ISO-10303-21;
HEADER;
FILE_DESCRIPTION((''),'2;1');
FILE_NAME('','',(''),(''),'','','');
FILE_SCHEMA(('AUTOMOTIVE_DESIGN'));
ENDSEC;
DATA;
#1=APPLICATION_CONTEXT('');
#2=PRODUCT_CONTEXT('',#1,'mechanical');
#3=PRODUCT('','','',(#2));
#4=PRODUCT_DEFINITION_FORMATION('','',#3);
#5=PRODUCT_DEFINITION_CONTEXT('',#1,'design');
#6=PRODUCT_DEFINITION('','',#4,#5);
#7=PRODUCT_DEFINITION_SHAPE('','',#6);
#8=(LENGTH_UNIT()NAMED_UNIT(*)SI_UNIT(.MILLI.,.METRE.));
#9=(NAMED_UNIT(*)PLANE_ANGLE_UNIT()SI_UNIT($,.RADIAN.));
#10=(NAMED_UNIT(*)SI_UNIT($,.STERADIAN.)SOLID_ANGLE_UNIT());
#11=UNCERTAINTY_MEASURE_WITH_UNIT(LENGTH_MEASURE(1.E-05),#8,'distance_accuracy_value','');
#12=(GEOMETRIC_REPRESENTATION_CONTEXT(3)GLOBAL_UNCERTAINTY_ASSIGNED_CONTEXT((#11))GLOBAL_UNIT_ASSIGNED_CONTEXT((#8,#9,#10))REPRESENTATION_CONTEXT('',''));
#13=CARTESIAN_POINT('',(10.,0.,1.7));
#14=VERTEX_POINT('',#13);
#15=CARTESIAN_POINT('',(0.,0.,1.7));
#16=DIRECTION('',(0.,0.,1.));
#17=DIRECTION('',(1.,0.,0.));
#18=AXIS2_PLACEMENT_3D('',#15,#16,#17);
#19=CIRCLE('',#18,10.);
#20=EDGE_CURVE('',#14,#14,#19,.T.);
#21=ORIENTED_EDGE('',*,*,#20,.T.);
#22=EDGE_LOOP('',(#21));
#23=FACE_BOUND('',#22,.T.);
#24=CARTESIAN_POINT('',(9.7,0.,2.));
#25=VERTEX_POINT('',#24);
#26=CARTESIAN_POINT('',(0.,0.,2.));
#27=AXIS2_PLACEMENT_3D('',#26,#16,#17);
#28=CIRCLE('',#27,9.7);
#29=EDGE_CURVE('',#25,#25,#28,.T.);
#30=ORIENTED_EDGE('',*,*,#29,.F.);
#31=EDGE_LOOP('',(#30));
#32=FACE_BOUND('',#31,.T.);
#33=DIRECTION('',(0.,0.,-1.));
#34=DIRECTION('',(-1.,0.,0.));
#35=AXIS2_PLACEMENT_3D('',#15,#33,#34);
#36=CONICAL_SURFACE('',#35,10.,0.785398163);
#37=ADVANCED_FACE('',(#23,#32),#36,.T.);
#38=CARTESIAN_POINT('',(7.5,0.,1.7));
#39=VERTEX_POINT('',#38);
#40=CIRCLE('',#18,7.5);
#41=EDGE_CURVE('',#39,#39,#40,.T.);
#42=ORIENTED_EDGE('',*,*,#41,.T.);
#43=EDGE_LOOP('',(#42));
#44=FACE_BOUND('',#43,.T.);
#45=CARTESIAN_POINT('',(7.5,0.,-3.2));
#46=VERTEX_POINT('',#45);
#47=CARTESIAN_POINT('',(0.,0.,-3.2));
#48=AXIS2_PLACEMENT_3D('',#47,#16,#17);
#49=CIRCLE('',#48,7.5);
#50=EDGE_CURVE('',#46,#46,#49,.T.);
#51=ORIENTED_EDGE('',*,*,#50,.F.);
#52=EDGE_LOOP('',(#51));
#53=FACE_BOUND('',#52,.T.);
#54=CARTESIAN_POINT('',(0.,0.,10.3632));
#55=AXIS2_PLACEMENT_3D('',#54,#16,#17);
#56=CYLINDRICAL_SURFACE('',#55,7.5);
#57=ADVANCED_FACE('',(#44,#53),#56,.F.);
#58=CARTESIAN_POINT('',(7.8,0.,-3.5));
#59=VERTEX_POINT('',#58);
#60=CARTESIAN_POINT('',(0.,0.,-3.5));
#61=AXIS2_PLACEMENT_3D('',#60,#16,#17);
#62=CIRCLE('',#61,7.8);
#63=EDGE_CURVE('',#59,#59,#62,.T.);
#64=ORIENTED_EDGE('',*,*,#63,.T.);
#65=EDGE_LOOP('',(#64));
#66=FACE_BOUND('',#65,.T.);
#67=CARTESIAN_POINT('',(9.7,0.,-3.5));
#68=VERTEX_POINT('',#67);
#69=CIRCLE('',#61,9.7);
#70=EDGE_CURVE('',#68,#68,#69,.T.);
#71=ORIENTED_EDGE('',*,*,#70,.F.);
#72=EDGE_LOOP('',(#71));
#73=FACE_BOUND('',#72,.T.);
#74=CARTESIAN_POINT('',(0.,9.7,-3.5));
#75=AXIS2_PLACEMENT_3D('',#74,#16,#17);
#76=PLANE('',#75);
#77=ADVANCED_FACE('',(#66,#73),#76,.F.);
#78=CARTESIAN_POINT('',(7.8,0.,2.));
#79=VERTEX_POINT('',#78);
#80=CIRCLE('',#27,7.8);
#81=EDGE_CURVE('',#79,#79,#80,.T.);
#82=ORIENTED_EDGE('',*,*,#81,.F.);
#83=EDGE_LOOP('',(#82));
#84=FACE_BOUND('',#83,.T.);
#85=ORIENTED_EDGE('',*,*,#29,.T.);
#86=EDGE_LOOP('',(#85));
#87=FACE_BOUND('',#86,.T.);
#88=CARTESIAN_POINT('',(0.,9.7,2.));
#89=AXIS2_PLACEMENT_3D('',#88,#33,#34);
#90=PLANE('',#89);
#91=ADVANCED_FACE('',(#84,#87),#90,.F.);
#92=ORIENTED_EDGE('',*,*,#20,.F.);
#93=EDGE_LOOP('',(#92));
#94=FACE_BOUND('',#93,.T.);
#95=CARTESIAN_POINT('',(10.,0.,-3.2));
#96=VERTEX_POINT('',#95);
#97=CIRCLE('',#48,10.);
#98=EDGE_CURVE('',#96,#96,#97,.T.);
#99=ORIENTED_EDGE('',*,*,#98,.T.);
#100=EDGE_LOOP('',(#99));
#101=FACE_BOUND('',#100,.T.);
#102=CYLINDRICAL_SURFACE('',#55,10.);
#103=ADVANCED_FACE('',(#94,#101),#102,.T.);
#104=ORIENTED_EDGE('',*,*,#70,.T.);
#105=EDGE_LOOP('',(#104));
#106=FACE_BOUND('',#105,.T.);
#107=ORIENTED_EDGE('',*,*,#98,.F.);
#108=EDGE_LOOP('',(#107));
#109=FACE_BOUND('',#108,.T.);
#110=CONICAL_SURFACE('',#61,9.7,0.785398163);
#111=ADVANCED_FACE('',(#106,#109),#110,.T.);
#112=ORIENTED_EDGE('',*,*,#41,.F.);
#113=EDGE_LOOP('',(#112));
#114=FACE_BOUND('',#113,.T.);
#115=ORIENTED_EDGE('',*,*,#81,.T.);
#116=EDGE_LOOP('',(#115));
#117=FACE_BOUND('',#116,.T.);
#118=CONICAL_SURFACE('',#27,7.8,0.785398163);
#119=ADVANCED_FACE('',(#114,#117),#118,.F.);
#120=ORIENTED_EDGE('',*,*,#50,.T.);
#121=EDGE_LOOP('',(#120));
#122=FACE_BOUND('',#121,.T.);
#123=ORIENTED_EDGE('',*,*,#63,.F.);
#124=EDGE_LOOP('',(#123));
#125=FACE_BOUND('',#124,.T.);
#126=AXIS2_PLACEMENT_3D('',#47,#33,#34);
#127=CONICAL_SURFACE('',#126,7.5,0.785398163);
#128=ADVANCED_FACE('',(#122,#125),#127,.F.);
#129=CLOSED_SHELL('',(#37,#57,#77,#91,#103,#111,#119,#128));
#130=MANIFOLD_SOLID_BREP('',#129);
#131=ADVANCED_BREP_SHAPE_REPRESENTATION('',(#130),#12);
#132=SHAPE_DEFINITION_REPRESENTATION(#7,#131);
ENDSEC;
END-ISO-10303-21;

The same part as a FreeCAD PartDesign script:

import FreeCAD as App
import Part
import Sketcher
Q = App.Units.Quantity


def add_polygon(sketch, points):
    """Adds a closed chain of lines whose ends are joined by coincident constraints."""
    first, n = sketch.GeometryCount, len(points)
    for a, b in zip(points, points[1:] + points[:1]):
        sketch.addGeometry(Part.LineSegment(App.Vector(*a, 0), App.Vector(*b, 0)), False)
    for i in range(n):
        sketch.addConstraint(Sketcher.Constraint("Coincident", first + i, 2, first + (i + 1) % n, 1))

doc = App.newDocument("Part")
body = doc.addObject("PartDesign::Body", "Body")

sketch1 = body.newObject("Sketcher::SketchObject", "Sketch")
sketch1.AttachmentSupport = (doc.getObject("YZ_Plane"), [""])
sketch1.MapMode = "FlatFace"
add_polygon(sketch1, [(10, 1.7), (9.7, 2), (7.8, 2), (7.5, 1.7), (7.5, -3.2), (7.8, -3.5), (9.7, -3.5), (10, -3.2)])
sketch1.addConstraint([
    Sketcher.Constraint("Horizontal", 1),
    Sketcher.Constraint("Vertical", 3),
    Sketcher.Constraint("Horizontal", 5),
    Sketcher.Constraint("Vertical", 7),
    Sketcher.Constraint("Perpendicular", 0, 2),
    Sketcher.Constraint("Perpendicular", 2, 4),
    Sketcher.Constraint("Perpendicular", 4, 6),
    Sketcher.Constraint("Horizontal", 3, 2, 6, 2),
    Sketcher.Constraint("Horizontal", 2, 2, 7, 2),
    Sketcher.Constraint("Vertical", 1, 2, 4, 2),
    Sketcher.Constraint("Vertical", 0, 2, 5, 2),
    Sketcher.Constraint("DistanceX", 1, 2, 1, 1, Q("1.9 mm")),
    Sketcher.Constraint("DistanceY", 3, 2, 3, 1, Q("4.9 mm")),
    Sketcher.Constraint("DistanceY", -1, 1, 0, 2, Q("2 mm")),
    Sketcher.Constraint("DistanceX", -1, 1, 6, 2, Q("10 mm")),
    Sketcher.Constraint("DistanceX", -1, 1, 0, 2, Q("9.7 mm")),
])
revolution = body.newObject("PartDesign::Revolution", "Revolution")
revolution.Profile = sketch1
revolution.ReferenceAxis = (sketch1, ["V_Axis"])
revolution.Angle = 360

doc.recompute()
